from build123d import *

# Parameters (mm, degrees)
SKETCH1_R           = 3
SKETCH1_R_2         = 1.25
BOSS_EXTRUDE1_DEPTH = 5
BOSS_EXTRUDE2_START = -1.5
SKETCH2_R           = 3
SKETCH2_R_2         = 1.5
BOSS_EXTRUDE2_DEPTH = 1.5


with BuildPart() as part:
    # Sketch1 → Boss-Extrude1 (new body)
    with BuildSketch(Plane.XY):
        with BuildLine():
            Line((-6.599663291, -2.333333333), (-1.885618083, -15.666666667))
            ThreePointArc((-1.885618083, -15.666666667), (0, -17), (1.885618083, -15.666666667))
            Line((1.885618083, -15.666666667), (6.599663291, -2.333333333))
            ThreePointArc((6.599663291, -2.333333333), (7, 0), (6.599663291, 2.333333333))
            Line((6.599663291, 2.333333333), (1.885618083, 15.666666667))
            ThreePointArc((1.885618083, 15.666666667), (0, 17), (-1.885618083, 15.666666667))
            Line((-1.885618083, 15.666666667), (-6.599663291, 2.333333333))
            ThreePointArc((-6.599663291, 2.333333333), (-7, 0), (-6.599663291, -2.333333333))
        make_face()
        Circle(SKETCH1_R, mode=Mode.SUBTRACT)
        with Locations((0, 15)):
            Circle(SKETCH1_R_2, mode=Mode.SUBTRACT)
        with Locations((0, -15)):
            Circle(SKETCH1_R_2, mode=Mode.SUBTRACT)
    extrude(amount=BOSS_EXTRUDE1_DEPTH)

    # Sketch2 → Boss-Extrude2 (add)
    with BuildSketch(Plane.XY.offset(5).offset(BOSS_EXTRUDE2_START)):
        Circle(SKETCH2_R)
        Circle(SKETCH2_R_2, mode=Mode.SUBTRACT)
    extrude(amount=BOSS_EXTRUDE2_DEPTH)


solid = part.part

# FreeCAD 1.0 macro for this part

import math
import FreeCAD as App
import Part
import Sketcher
from FreeCAD import Vector
Q = App.Units.Quantity

doc = App.newDocument("Part")
body = doc.addObject("PartDesign::Body", "Body")

sketch1 = body.newObject("Sketcher::SketchObject", "Sketch")
sketch1.AttachmentSupport = (doc.getObject("XY_Plane"), [""])
sketch1.MapMode = "FlatFace"
sketch1.addGeometry([
    Part.LineSegment(Vector(-6.599663, -2.333333, 0), Vector(-1.885618, -15.666667, 0)),
    Part.ArcOfCircle(Part.Circle(Vector(0, -15, 0), Vector(0, 0, 1), 2), math.radians(-160.528779), math.radians(-19.471221)),
    Part.LineSegment(Vector(1.885618, -15.666667, 0), Vector(6.599663, -2.333333, 0)),
    Part.ArcOfCircle(Part.Circle(Vector(0, 0, 0), Vector(0, 0, 1), 7), math.radians(-19.471221), math.radians(19.471221)),
    Part.LineSegment(Vector(6.599663, 2.333333, 0), Vector(1.885618, 15.666667, 0)),
    Part.ArcOfCircle(Part.Circle(Vector(0, 15, 0), Vector(0, 0, 1), 2), math.radians(19.471221), math.radians(160.528779)),
    Part.LineSegment(Vector(-1.885618, 15.666667, 0), Vector(-6.599663, 2.333333, 0)),
    Part.ArcOfCircle(Part.Circle(Vector(0, 0, 0), Vector(0, 0, 1), 7), math.radians(160.528779), math.radians(199.471221)),
    Part.Circle(Vector(0, -15, 0), Vector(0, 0, 1), 1.25),
    Part.Circle(Vector(0, 0, 0), Vector(0, 0, 1), 3),
    Part.Circle(Vector(0, 15, 0), Vector(0, 0, 1), 1.25),
], False)
sketch1.addConstraint([
    Sketcher.Constraint("Tangent", 0, 2, 1, 1),
    Sketcher.Constraint("Tangent", 1, 2, 2, 1),
    Sketcher.Constraint("Tangent", 2, 2, 3, 1),
    Sketcher.Constraint("Tangent", 3, 2, 4, 1),
    Sketcher.Constraint("Tangent", 4, 2, 5, 1),
    Sketcher.Constraint("Tangent", 5, 2, 6, 1),
    Sketcher.Constraint("Tangent", 6, 2, 7, 1),
    Sketcher.Constraint("Tangent", 7, 2, 0, 1),
    Sketcher.Constraint("Coincident", 3, 3, -1, 1),
    Sketcher.Constraint("Coincident", 7, 3, -1, 1),
    Sketcher.Constraint("Coincident", 9, 3, -1, 1),
    Sketcher.Constraint("Coincident", 8, 3, 1, 3),
    Sketcher.Constraint("Coincident", 10, 3, 5, 3),
    Sketcher.Constraint("Equal", 1, 5),
    Sketcher.Constraint("Equal", 3, 7),
    Sketcher.Constraint("Equal", 8, 10),
    Sketcher.Constraint("Symmetric", 1, 3, 5, 3, -1, 1),
    Sketcher.Constraint("PointOnObject", 1, 3, -2),
    Sketcher.Constraint("Diameter", 9, Q("6 mm")),
    Sketcher.Constraint("Radius", 1, Q("2 mm")),
    Sketcher.Constraint("Radius", 3, Q("7 mm")),
    Sketcher.Constraint("Diameter", 8, Q("2.5 mm")),
    Sketcher.Constraint("DistanceY", 1, 3, -1, 1, Q("15 mm")),
])
pad1 = body.newObject("PartDesign::Pad", "Pad")
pad1.Profile = sketch1
pad1.Length = 5

sketch2 = body.newObject("Sketcher::SketchObject", "Sketch001")
sketch2.AttachmentSupport = (doc.getObject("XY_Plane"), [""])
sketch2.MapMode = "FlatFace"
sketch2.AttachmentOffset = App.Placement(Vector(0, 0, 3.5), App.Rotation())
sketch2.addGeometry([
    Part.Circle(Vector(0, 0, 0), Vector(0, 0, 1), 3),
    Part.Circle(Vector(0, 0, 0), Vector(0, 0, 1), 1.5),
], False)
sketch2.addConstraint([
    Sketcher.Constraint("Coincident", 0, 3, -1, 1),
    Sketcher.Constraint("Coincident", 1, 3, -1, 1),
    Sketcher.Constraint("Diameter", 0, Q("6 mm")),
    Sketcher.Constraint("Diameter", 1, Q("3 mm")),
])
pad2 = body.newObject("PartDesign::Pad", "Pad001")
pad2.Profile = sketch2
pad2.Length = 1.5

doc.recompute()
